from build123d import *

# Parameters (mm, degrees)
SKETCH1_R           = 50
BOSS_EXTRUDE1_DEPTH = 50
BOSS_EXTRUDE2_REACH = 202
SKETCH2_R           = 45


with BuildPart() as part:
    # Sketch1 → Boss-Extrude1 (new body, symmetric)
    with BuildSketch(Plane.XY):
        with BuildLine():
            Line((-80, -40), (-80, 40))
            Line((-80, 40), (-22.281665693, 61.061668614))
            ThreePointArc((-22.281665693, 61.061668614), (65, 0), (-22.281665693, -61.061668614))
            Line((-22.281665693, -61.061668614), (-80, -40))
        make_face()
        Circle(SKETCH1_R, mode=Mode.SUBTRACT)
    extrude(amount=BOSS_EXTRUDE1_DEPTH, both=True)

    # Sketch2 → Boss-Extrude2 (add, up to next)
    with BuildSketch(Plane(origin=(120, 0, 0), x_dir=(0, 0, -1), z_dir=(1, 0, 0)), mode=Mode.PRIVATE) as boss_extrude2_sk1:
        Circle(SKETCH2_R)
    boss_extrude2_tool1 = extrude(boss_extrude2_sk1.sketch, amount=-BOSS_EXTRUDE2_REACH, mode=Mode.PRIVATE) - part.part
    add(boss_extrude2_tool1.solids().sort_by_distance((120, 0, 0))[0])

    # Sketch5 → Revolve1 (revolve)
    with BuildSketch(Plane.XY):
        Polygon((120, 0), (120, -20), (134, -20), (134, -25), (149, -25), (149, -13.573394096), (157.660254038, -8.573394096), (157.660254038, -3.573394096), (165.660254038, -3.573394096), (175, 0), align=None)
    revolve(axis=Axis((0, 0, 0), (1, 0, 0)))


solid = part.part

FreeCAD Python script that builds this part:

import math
import FreeCAD as App
import Part
import Sketcher
Q = App.Units.Quantity


def add_polygon(sketch, points):
    """Adds a closed chain of lines whose ends are joined by coincident constraints."""
    first, n = sketch.GeometryCount, len(points)
    for a, b in zip(points, points[1:] + points[:1]):
        sketch.addGeometry(Part.LineSegment(App.Vector(*a, 0), App.Vector(*b, 0)), False)
    for i in range(n):
        sketch.addConstraint(Sketcher.Constraint("Coincident", first + i, 2, first + (i + 1) % n, 1))

doc = App.newDocument("Part")
params = doc.addObject("Spreadsheet::Sheet", "Params")
for row, (alias, value) in enumerate([
    ("sketch1_diameter", "100 mm"),
    ("sketch1_radius", "65 mm"),
    ("sketch1_height", "80 mm"),
    ("pad1_length", "100 mm"),
    ("sketch2_diameter", "90 mm"),
    ("sketch3_width", "14 mm"),
    ("sketch3_width2", "15 mm"),
    ("sketch3_width3", "8 mm"),
    ("sketch3_width4", "55 mm"),
    ("sketch3_height", "20 mm"),
    ("revolution_angle", "360 deg"),
], start=1):
    params.set(f"A{row}", alias)
    params.set(f"B{row}", "=" + value)
    params.setAlias(f"B{row}", alias)

body = doc.addObject("PartDesign::Body", "Body")

sketch1 = body.newObject("Sketcher::SketchObject", "Sketch")
sketch1.AttachmentSupport = (doc.getObject("XY_Plane"), [""])
sketch1.MapMode = "FlatFace"
sketch1.addGeometry([
    Part.LineSegment(App.Vector(-80, 40, 0), App.Vector(-80, -40, 0)),
    Part.LineSegment(App.Vector(-80, -40, 0), App.Vector(-22, -61, 0)),
    Part.ArcOfCircle(Part.Circle(App.Vector(0, 0, 0), App.Vector(0, 0, 1), 65), math.radians(-110), math.radians(110)),
    Part.LineSegment(App.Vector(-22, 61, 0), App.Vector(-80, 40, 0)),
    Part.Circle(App.Vector(0, 0, 0), App.Vector(0, 0, 1), 50),
], False)
sketch1.addConstraint([
    Sketcher.Constraint("Coincident", 0, 2, 1, 1),
    Sketcher.Constraint("Tangent", 1, 2, 2, 1),
    Sketcher.Constraint("Tangent", 2, 2, 3, 1),
    Sketcher.Constraint("Coincident", 3, 2, 0, 1),
    Sketcher.Constraint("Vertical", 0),
    Sketcher.Constraint("Coincident", 2, 3, -1, 1),
    Sketcher.Constraint("Coincident", 4, 3, -1, 1),
    Sketcher.Constraint("Vertical", 1, 2, 2, 2),
    Sketcher.Constraint("Diameter", 4, Q("100 mm")),
    Sketcher.Constraint("Radius", 2, Q("65 mm")),
    Sketcher.Constraint("DistanceY", 0, 2, 0, 1, Q("80 mm")),
    Sketcher.Constraint("DistanceX", 0, 2, -1, 1, Q("80 mm")),
])
sketch1.setExpression("Constraints[8]", "Params.sketch1_diameter")
sketch1.setExpression("Constraints[9]", "Params.sketch1_radius")
sketch1.setExpression("Constraints[10]", "Params.sketch1_height")
pad1 = body.newObject("PartDesign::Pad", "Pad")
pad1.Profile = sketch1
pad1.setExpression("Length", "Params.pad1_length")
pad1.Midplane = True

sketch2 = body.newObject("Sketcher::SketchObject", "Sketch001")
sketch2.AttachmentSupport = (doc.getObject("YZ_Plane"), [""])
sketch2.MapMode = "FlatFace"
sketch2.AttachmentOffset = App.Placement(App.Vector(0, 0, 120), App.Rotation())
sketch2.addGeometry(Part.Circle(App.Vector(0, 0, 0), App.Vector(0, 0, 1), 45), False)
sketch2.addConstraint([
    Sketcher.Constraint("Coincident", 0, 3, -1, 1),
    Sketcher.Constraint("Diameter", 0, Q("90 mm")),
])
sketch2.setExpression("Constraints[1]", "Params.sketch2_diameter")
pad2 = body.newObject("PartDesign::Pad", "Pad001")
pad2.Profile = sketch2
pad2.Type = "UpToFirst"
pad2.Reversed = True

sketch3 = body.newObject("Sketcher::SketchObject", "Sketch002")
sketch3.AttachmentSupport = (doc.getObject("XY_Plane"), [""])
sketch3.MapMode = "FlatFace"
add_polygon(sketch3, [(120, 0), (120, -20), (134, -20), (134, -25), (149, -25), (149, -14), (158, -9), (158, -4), (166, -4), (175, 0)])
sketch3.addConstraint([
    Sketcher.Constraint("Vertical", 0),
    Sketcher.Constraint("Horizontal", 1),
    Sketcher.Constraint("Vertical", 2),
    Sketcher.Constraint("Horizontal", 3),
    Sketcher.Constraint("Vertical", 4),
    Sketcher.Constraint("Vertical", 6),
    Sketcher.Constraint("Horizontal", 7),
    Sketcher.Constraint("Horizontal", 9),
    Sketcher.Constraint("PointOnObject", 8, 2, -1),
    Sketcher.Constraint("Equal", 2, 6),
    Sketcher.Constraint("Equal", 5, 8),
    Sketcher.Constraint("DistanceX", 1, 1, 1, 2, Q("14 mm")),
    Sketcher.Constraint("DistanceX", 3, 1, 3, 2, Q("15 mm")),
    Sketcher.Constraint("DistanceX", 7, 1, 7, 2, Q("8 mm")),
    Sketcher.Constraint("DistanceX", 9, 2, 9, 1, Q("55 mm")),
    Sketcher.Constraint("DistanceY", 0, 2, 0, 1, Q("20 mm")),
    Sketcher.Constraint("DistanceY", 2, 2, 2, 1, Q("5 mm")),
    Sketcher.Constraint("Angle", 5, Q("30 deg")),
    Sketcher.Constraint("Distance", 5, Q("10 mm")),
    Sketcher.Constraint("DistanceX", -1, 1, 0, 2, Q("120 mm")),
])
sketch3.setExpression("Constraints[21]", "Params.sketch3_width")
sketch3.setExpression("Constraints[22]", "Params.sketch3_width2")
sketch3.setExpression("Constraints[23]", "Params.sketch3_width3")
sketch3.setExpression("Constraints[24]", "Params.sketch3_width4")
sketch3.setExpression("Constraints[25]", "Params.sketch3_height")
revolution = body.newObject("PartDesign::Revolution", "Revolution")
revolution.Profile = sketch3
revolution.ReferenceAxis = (sketch3, ["H_Axis"])
revolution.setExpression("Angle", "Params.revolution_angle")

doc.recompute()
